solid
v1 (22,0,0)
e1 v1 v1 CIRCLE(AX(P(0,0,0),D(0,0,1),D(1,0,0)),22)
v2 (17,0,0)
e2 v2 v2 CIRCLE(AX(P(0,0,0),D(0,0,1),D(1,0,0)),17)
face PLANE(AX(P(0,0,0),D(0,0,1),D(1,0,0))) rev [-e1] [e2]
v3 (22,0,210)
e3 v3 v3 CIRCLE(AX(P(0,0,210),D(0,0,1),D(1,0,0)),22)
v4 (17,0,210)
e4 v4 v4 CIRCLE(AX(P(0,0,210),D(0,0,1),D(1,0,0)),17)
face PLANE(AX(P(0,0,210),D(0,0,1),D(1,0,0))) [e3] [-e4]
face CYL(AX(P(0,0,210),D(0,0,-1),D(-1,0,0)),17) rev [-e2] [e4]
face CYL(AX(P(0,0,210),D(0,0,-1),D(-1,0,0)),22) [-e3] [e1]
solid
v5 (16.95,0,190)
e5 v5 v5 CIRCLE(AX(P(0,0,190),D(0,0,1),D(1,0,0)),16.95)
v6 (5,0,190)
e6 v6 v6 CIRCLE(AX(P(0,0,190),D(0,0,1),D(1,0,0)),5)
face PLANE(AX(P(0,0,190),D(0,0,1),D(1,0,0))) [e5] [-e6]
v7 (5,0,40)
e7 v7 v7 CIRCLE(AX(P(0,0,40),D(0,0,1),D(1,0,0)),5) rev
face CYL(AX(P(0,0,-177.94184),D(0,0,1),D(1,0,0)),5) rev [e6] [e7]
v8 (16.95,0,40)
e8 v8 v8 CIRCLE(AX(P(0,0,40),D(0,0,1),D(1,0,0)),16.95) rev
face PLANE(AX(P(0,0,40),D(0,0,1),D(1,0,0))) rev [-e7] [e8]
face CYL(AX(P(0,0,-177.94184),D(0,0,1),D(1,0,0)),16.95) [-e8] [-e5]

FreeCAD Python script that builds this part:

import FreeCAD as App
import Part
import Sketcher

V = App.Vector

doc = App.newDocument("Part")
params = doc.addObject("Spreadsheet::Sheet", "Params")
for row, (alias, value) in enumerate([
    ("sketch1_diameter", "44 mm"),
    ("sketch1_diameter2", "34 mm"),
    ("pad1_length", "210 mm"),
    ("sketch2_diameter", "10 mm"),
    ("sketch2_diameter2", "33.9 mm"),
    ("pad2_length", "150 mm"),
], start=1):
    params.set(f"A{row}", alias)
    params.set(f"B{row}", "=" + value)
    params.setAlias(f"B{row}", alias)

body = doc.addObject("PartDesign::Body", "Body")

# Sketch on XY plane
sketch1 = body.newObject("Sketcher::SketchObject", "Sketch")
sketch1.AttachmentSupport = (doc.getObject("XY_Plane"), [""])
sketch1.MapMode = "FlatFace"
sketch1.addGeometry(Part.Circle(V(0, 0, 0), V(0, 0, 1), 22), False)
sketch1.addGeometry(Part.Circle(V(0, 0, 0), V(0, 0, 1), 17), False)
sketch1.addConstraint(Sketcher.Constraint("Coincident", 0, 3, -1, 1))
sketch1.addConstraint(Sketcher.Constraint("Coincident", 1, 3, -1, 1))
sketch1.addConstraint(Sketcher.Constraint("Diameter", 0, 44.0))
sketch1.addConstraint(Sketcher.Constraint("Diameter", 1, 34.0))
sketch1.setExpression("Constraints[2]", "Params.sketch1_diameter")
sketch1.setExpression("Constraints[3]", "Params.sketch1_diameter2")
pad1 = body.newObject("PartDesign::Pad", "Pad")
pad1.Profile = sketch1
pad1.setExpression("Length", "Params.pad1_length")
body2 = doc.addObject("PartDesign::Body", "Body001")

# Sketch on XY plane
sketch2 = body2.newObject("Sketcher::SketchObject", "Sketch001")
sketch2.AttachmentSupport = (doc.getObject("XY_Plane001"), [""])
sketch2.MapMode = "FlatFace"
sketch2.AttachmentOffset = App.Placement(V(0, 0, 190), App.Rotation())
sketch2.addGeometry(Part.Circle(V(0, 0, 0), V(0, 0, 1), 16.95), False)
sketch2.addGeometry(Part.Circle(V(0, 0, 0), V(0, 0, 1), 5), False)
sketch2.addConstraint(Sketcher.Constraint("Coincident", 0, 3, -1, 1))
sketch2.addConstraint(Sketcher.Constraint("Coincident", 1, 3, -1, 1))
sketch2.addConstraint(Sketcher.Constraint("Diameter", 1, 10.0))
sketch2.addConstraint(Sketcher.Constraint("Diameter", 0, 33.9))
sketch2.setExpression("Constraints[2]", "Params.sketch2_diameter")
sketch2.setExpression("Constraints[3]", "Params.sketch2_diameter2")
pad2 = body2.newObject("PartDesign::Pad", "Pad001")
pad2.Profile = sketch2
pad2.setExpression("Length", "Params.pad2_length")
pad2.Reversed = True

doc.recompute()
